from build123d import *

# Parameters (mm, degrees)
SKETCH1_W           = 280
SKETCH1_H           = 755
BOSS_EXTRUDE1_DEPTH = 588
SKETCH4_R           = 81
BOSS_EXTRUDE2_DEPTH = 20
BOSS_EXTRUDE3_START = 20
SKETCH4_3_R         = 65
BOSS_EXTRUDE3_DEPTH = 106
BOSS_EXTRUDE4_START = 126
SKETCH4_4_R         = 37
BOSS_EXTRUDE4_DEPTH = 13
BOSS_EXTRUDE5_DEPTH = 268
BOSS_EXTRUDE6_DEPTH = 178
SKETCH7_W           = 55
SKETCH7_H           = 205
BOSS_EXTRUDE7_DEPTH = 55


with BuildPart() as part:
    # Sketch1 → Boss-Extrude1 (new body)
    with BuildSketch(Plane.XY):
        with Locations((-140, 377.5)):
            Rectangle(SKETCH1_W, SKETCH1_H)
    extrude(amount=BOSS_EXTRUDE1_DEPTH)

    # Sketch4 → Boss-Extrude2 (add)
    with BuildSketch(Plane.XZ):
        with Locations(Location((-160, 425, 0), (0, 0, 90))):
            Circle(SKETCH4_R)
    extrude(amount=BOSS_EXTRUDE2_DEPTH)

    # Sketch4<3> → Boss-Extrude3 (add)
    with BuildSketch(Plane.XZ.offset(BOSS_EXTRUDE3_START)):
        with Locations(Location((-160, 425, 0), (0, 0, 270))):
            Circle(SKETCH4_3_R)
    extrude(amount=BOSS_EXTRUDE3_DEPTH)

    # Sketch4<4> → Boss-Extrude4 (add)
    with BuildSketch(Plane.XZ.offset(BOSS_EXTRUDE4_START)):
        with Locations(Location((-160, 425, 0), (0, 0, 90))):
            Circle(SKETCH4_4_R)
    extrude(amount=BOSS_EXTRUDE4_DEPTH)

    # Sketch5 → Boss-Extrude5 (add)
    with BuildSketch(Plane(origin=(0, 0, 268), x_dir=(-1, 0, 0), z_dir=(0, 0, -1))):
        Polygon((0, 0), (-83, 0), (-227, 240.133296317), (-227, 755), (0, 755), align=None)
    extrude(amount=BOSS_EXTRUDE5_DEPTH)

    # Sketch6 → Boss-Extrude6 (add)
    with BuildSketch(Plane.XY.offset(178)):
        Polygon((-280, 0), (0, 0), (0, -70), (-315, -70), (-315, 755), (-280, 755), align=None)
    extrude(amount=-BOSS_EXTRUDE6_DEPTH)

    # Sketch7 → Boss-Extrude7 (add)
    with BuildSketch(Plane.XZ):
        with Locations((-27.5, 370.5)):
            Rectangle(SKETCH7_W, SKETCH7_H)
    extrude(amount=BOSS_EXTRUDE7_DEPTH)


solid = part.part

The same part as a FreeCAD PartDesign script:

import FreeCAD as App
import Part
import Sketcher
Q = App.Units.Quantity


def add_polygon(sketch, points):
    """Adds a closed chain of lines whose ends are joined by coincident constraints."""
    first, n = sketch.GeometryCount, len(points)
    for a, b in zip(points, points[1:] + points[:1]):
        sketch.addGeometry(Part.LineSegment(App.Vector(*a, 0), App.Vector(*b, 0)), False)
    for i in range(n):
        sketch.addConstraint(Sketcher.Constraint("Coincident", first + i, 2, first + (i + 1) % n, 1))

doc = App.newDocument("Part")
body = doc.addObject("PartDesign::Body", "Body")

# Sketch on XY plane
sketch1 = doc.addObject("Sketcher::SketchObject", "Sketch")
body.addObject(sketch1)
sketch1.AttachmentSupport = (doc.XY_Plane, [""])
sketch1.MapMode = "FlatFace"
add_polygon(sketch1, [(-280, 755), (-280, 0), (0, 0), (0, 755)])  # lines 0-3
sketch1.addConstraint([
    Sketcher.Constraint("Vertical", 0),
    Sketcher.Constraint("Horizontal", 1),
    Sketcher.Constraint("Vertical", 2),
    Sketcher.Constraint("Horizontal", 3),
    Sketcher.Constraint("Coincident", 1, 2, -1, 1),
    Sketcher.Constraint("DistanceX", 1, 1, 1, 2, Q("280 mm")),
    Sketcher.Constraint("DistanceY", 0, 2, 0, 1, Q("755 mm")),
])
pad1 = doc.addObject("PartDesign::Pad", "Pad")
body.addObject(pad1)
pad1.Profile = sketch1
pad1.Length = 588

# Sketch on XZ plane
sketch2 = doc.addObject("Sketcher::SketchObject", "Sketch001")
body.addObject(sketch2)
sketch2.AttachmentSupport = (doc.XZ_Plane, [""])
sketch2.MapMode = "FlatFace"
sketch2.addGeometry(Part.Circle(App.Vector(-160, 425, 0), App.Vector(0, 0, 1), 81), False)
sketch2.addConstraint([
    Sketcher.Constraint("Diameter", 0, Q("162 mm")),
    Sketcher.Constraint("DistanceX", 0, 3, -1, 1, Q("160 mm")),
    Sketcher.Constraint("DistanceY", -1, 1, 0, 3, Q("425 mm")),
])
pad2 = doc.addObject("PartDesign::Pad", "Pad001")
body.addObject(pad2)
pad2.Profile = sketch2
pad2.Length = 20

# Sketch on XZ plane
sketch3 = doc.addObject("Sketcher::SketchObject", "Sketch002")
body.addObject(sketch3)
sketch3.AttachmentSupport = (doc.XZ_Plane, [""])
sketch3.MapMode = "FlatFace"
sketch3.AttachmentOffset = App.Placement(App.Vector(0, 0, 20), App.Rotation())
sketch3.addGeometry(Part.Circle(App.Vector(-160, 425, 0), App.Vector(0, 0, 1), 65), False)
sketch3.addConstraint([
    Sketcher.Constraint("Diameter", 0, Q("130 mm")),
    Sketcher.Constraint("DistanceX", 0, 3, -1, 1, Q("160 mm")),
    Sketcher.Constraint("DistanceY", -1, 1, 0, 3, Q("425 mm")),
])
pad3 = doc.addObject("PartDesign::Pad", "Pad002")
body.addObject(pad3)
pad3.Profile = sketch3
pad3.Length = 106

# Sketch on XZ plane
sketch4 = doc.addObject("Sketcher::SketchObject", "Sketch003")
body.addObject(sketch4)
sketch4.AttachmentSupport = (doc.XZ_Plane, [""])
sketch4.MapMode = "FlatFace"
sketch4.AttachmentOffset = App.Placement(App.Vector(0, 0, 126), App.Rotation())
sketch4.addGeometry(Part.Circle(App.Vector(-160, 425, 0), App.Vector(0, 0, 1), 37), False)
sketch4.addConstraint([
    Sketcher.Constraint("Diameter", 0, Q("74 mm")),
    Sketcher.Constraint("DistanceX", 0, 3, -1, 1, Q("160 mm")),
    Sketcher.Constraint("DistanceY", -1, 1, 0, 3, Q("425 mm")),
])
pad4 = doc.addObject("PartDesign::Pad", "Pad003")
body.addObject(pad4)
pad4.Profile = sketch4
pad4.Length = 13

# Sketch on XY plane
sketch5 = doc.addObject("Sketcher::SketchObject", "Sketch004")
body.addObject(sketch5)
sketch5.AttachmentSupport = (doc.XY_Plane, [""])
sketch5.MapMode = "FlatFace"
sketch5.AttachmentOffset = App.Placement(App.Vector(0, 0, 268), App.Rotation())
add_polygon(sketch5, [(83, 0), (0, 0), (0, 755), (227, 755), (227, 240)])  # lines 0-4
sketch5.addConstraint([
    Sketcher.Constraint("Horizontal", 0),
    Sketcher.Constraint("Vertical", 1),
    Sketcher.Constraint("Horizontal", 2),
    Sketcher.Constraint("Vertical", 3),
    Sketcher.Constraint("Coincident", 0, 2, -1, 1),
    Sketcher.Constraint("DistanceX", 0, 2, 0, 1, Q("83 mm")),
    Sketcher.Constraint("DistanceX", 2, 1, 2, 2, Q("227 mm")),
    Sketcher.Constraint("DistanceY", 1, 1, 1, 2, Q("755 mm")),
    Sketcher.Constraint("Distance", 4, Q("280 mm")),
])
pad5 = doc.addObject("PartDesign::Pad", "Pad004")
body.addObject(pad5)
pad5.Profile = sketch5
pad5.Length = 268
pad5.Reversed = True

# Sketch on XY plane
sketch6 = doc.addObject("Sketcher::SketchObject", "Sketch005")
body.addObject(sketch6)
sketch6.AttachmentSupport = (doc.XY_Plane, [""])
sketch6.MapMode = "FlatFace"
sketch6.AttachmentOffset = App.Placement(App.Vector(0, 0, 178), App.Rotation())
add_polygon(sketch6, [(0, 0), (-280, 0), (-280, 755), (-315, 755), (-315, -70), (0, -70)])  # lines 0-5
sketch6.addConstraint([
    Sketcher.Constraint("Horizontal", 0),
    Sketcher.Constraint("Vertical", 1),
    Sketcher.Constraint("Horizontal", 2),
    Sketcher.Constraint("Vertical", 3),
    Sketcher.Constraint("Horizontal", 4),
    Sketcher.Constraint("Vertical", 5),
    Sketcher.Constraint("Coincident", 5, 2, -1, 1),
    Sketcher.Constraint("DistanceX", 0, 2, 0, 1, Q("280 mm")),
    Sketcher.Constraint("DistanceX", 2, 2, 2, 1, Q("35 mm")),
    Sketcher.Constraint("DistanceY", 1, 1, 1, 2, Q("755 mm")),
    Sketcher.Constraint("DistanceY", 3, 2, 3, 1, Q("825 mm")),
])
pad6 = doc.addObject("PartDesign::Pad", "Pad005")
body.addObject(pad6)
pad6.Profile = sketch6
pad6.Length = 178
pad6.Reversed = True

# Sketch on XZ plane
sketch7 = doc.addObject("Sketcher::SketchObject", "Sketch006")
body.addObject(sketch7)
sketch7.AttachmentSupport = (doc.XZ_Plane, [""])
sketch7.MapMode = "FlatFace"
add_polygon(sketch7, [(-55, 473), (-55, 268), (0, 268), (0, 473)])  # lines 0-3
sketch7.addConstraint([
    Sketcher.Constraint("Vertical", 0),
    Sketcher.Constraint("Horizontal", 1),
    Sketcher.Constraint("Vertical", 2),
    Sketcher.Constraint("Horizontal", 3),
    Sketcher.Constraint("PointOnObject", 1, 2, -2),
    Sketcher.Constraint("DistanceX", 1, 1, 1, 2, Q("55 mm")),
    Sketcher.Constraint("DistanceY", 0, 2, 0, 1, Q("205 mm")),
    Sketcher.Constraint("DistanceY", -1, 1, 0, 2, Q("268 mm")),
])
pad7 = doc.addObject("PartDesign::Pad", "Pad006")
body.addObject(pad7)
pad7.Profile = sketch7
pad7.Length = 55

doc.recompute()
